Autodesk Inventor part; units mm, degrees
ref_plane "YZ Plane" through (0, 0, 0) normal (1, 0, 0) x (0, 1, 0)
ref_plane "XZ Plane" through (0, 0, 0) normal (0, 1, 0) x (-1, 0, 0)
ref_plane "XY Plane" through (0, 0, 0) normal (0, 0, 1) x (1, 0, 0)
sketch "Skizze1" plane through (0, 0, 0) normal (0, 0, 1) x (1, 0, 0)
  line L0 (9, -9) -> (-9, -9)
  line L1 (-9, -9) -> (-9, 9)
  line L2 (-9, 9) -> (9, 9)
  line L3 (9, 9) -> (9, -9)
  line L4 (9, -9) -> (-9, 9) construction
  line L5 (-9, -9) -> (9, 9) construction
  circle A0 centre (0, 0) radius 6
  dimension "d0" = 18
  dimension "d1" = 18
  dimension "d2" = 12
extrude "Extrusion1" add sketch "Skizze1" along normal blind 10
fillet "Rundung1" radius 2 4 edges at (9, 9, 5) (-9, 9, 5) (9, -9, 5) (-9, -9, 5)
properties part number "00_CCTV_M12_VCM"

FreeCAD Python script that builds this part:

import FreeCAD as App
import Part
import Sketcher
from FreeCAD import Vector
Q = App.Units.Quantity


def edges_at(feature, points):
    """Names of the edges that pass closest to the given points."""
    edges = feature.Shape.Edges
    near = lambda p: min(range(len(edges)), key=lambda i: edges[i].distToShape(Part.Vertex(*p))[0])
    return sorted({f"Edge{near(p) + 1}" for p in points})

doc = App.newDocument("Part")
body = doc.addObject("PartDesign::Body", "Body")

# Sketch on XY plane
sketch1 = doc.addObject("Sketcher::SketchObject", "Sketch")
body.addObject(sketch1)
sketch1.AttachmentSupport = (doc.XY_Plane, [""])
sketch1.MapMode = "FlatFace"
sketch1.addGeometry(Part.LineSegment(Vector(-9, -9, 0), Vector(9, -9, 0)), False)
sketch1.addGeometry(Part.LineSegment(Vector(9, -9, 0), Vector(9, 9, 0)), False)
sketch1.addGeometry(Part.LineSegment(Vector(9, 9, 0), Vector(-9, 9, 0)), False)
sketch1.addGeometry(Part.LineSegment(Vector(-9, 9, 0), Vector(-9, -9, 0)), False)
sketch1.addGeometry(Part.Circle(Vector(0, 0, 0), Vector(0, 0, 1), 6), False)
sketch1.addConstraint(Sketcher.Constraint("Coincident", 0, 2, 1, 1))
sketch1.addConstraint(Sketcher.Constraint("Coincident", 1, 2, 2, 1))
sketch1.addConstraint(Sketcher.Constraint("Coincident", 2, 2, 3, 1))
sketch1.addConstraint(Sketcher.Constraint("Coincident", 3, 2, 0, 1))
sketch1.addConstraint(Sketcher.Constraint("Horizontal", 0))
sketch1.addConstraint(Sketcher.Constraint("Vertical", 1))
sketch1.addConstraint(Sketcher.Constraint("Horizontal", 2))
sketch1.addConstraint(Sketcher.Constraint("Vertical", 3))
sketch1.addConstraint(Sketcher.Constraint("Coincident", 4, 3, -1, 1))
sketch1.addConstraint(Sketcher.Constraint("Symmetric", 0, 2, 2, 2, -1, 1))
sketch1.addConstraint(Sketcher.Constraint("Equal", 2, 1))
sketch1.addConstraint(Sketcher.Constraint("Diameter", 4, Q("12 mm")))
sketch1.addConstraint(Sketcher.Constraint("DistanceX", 0, 1, 0, 2, Q("18 mm")))
pad1 = doc.addObject("PartDesign::Pad", "Pad")
body.addObject(pad1)
pad1.Profile = sketch1
pad1.Length = 10
doc.recompute()

fillet = doc.addObject("PartDesign::Fillet", "Fillet")
body.addObject(fillet)
fillet.Base = (pad1, edges_at(pad1, [
    (9, 9, 5),
    (-9, 9, 5),
    (9, -9, 5),
    (-9, -9, 5),
]))
fillet.Radius = 2

doc.recompute()
